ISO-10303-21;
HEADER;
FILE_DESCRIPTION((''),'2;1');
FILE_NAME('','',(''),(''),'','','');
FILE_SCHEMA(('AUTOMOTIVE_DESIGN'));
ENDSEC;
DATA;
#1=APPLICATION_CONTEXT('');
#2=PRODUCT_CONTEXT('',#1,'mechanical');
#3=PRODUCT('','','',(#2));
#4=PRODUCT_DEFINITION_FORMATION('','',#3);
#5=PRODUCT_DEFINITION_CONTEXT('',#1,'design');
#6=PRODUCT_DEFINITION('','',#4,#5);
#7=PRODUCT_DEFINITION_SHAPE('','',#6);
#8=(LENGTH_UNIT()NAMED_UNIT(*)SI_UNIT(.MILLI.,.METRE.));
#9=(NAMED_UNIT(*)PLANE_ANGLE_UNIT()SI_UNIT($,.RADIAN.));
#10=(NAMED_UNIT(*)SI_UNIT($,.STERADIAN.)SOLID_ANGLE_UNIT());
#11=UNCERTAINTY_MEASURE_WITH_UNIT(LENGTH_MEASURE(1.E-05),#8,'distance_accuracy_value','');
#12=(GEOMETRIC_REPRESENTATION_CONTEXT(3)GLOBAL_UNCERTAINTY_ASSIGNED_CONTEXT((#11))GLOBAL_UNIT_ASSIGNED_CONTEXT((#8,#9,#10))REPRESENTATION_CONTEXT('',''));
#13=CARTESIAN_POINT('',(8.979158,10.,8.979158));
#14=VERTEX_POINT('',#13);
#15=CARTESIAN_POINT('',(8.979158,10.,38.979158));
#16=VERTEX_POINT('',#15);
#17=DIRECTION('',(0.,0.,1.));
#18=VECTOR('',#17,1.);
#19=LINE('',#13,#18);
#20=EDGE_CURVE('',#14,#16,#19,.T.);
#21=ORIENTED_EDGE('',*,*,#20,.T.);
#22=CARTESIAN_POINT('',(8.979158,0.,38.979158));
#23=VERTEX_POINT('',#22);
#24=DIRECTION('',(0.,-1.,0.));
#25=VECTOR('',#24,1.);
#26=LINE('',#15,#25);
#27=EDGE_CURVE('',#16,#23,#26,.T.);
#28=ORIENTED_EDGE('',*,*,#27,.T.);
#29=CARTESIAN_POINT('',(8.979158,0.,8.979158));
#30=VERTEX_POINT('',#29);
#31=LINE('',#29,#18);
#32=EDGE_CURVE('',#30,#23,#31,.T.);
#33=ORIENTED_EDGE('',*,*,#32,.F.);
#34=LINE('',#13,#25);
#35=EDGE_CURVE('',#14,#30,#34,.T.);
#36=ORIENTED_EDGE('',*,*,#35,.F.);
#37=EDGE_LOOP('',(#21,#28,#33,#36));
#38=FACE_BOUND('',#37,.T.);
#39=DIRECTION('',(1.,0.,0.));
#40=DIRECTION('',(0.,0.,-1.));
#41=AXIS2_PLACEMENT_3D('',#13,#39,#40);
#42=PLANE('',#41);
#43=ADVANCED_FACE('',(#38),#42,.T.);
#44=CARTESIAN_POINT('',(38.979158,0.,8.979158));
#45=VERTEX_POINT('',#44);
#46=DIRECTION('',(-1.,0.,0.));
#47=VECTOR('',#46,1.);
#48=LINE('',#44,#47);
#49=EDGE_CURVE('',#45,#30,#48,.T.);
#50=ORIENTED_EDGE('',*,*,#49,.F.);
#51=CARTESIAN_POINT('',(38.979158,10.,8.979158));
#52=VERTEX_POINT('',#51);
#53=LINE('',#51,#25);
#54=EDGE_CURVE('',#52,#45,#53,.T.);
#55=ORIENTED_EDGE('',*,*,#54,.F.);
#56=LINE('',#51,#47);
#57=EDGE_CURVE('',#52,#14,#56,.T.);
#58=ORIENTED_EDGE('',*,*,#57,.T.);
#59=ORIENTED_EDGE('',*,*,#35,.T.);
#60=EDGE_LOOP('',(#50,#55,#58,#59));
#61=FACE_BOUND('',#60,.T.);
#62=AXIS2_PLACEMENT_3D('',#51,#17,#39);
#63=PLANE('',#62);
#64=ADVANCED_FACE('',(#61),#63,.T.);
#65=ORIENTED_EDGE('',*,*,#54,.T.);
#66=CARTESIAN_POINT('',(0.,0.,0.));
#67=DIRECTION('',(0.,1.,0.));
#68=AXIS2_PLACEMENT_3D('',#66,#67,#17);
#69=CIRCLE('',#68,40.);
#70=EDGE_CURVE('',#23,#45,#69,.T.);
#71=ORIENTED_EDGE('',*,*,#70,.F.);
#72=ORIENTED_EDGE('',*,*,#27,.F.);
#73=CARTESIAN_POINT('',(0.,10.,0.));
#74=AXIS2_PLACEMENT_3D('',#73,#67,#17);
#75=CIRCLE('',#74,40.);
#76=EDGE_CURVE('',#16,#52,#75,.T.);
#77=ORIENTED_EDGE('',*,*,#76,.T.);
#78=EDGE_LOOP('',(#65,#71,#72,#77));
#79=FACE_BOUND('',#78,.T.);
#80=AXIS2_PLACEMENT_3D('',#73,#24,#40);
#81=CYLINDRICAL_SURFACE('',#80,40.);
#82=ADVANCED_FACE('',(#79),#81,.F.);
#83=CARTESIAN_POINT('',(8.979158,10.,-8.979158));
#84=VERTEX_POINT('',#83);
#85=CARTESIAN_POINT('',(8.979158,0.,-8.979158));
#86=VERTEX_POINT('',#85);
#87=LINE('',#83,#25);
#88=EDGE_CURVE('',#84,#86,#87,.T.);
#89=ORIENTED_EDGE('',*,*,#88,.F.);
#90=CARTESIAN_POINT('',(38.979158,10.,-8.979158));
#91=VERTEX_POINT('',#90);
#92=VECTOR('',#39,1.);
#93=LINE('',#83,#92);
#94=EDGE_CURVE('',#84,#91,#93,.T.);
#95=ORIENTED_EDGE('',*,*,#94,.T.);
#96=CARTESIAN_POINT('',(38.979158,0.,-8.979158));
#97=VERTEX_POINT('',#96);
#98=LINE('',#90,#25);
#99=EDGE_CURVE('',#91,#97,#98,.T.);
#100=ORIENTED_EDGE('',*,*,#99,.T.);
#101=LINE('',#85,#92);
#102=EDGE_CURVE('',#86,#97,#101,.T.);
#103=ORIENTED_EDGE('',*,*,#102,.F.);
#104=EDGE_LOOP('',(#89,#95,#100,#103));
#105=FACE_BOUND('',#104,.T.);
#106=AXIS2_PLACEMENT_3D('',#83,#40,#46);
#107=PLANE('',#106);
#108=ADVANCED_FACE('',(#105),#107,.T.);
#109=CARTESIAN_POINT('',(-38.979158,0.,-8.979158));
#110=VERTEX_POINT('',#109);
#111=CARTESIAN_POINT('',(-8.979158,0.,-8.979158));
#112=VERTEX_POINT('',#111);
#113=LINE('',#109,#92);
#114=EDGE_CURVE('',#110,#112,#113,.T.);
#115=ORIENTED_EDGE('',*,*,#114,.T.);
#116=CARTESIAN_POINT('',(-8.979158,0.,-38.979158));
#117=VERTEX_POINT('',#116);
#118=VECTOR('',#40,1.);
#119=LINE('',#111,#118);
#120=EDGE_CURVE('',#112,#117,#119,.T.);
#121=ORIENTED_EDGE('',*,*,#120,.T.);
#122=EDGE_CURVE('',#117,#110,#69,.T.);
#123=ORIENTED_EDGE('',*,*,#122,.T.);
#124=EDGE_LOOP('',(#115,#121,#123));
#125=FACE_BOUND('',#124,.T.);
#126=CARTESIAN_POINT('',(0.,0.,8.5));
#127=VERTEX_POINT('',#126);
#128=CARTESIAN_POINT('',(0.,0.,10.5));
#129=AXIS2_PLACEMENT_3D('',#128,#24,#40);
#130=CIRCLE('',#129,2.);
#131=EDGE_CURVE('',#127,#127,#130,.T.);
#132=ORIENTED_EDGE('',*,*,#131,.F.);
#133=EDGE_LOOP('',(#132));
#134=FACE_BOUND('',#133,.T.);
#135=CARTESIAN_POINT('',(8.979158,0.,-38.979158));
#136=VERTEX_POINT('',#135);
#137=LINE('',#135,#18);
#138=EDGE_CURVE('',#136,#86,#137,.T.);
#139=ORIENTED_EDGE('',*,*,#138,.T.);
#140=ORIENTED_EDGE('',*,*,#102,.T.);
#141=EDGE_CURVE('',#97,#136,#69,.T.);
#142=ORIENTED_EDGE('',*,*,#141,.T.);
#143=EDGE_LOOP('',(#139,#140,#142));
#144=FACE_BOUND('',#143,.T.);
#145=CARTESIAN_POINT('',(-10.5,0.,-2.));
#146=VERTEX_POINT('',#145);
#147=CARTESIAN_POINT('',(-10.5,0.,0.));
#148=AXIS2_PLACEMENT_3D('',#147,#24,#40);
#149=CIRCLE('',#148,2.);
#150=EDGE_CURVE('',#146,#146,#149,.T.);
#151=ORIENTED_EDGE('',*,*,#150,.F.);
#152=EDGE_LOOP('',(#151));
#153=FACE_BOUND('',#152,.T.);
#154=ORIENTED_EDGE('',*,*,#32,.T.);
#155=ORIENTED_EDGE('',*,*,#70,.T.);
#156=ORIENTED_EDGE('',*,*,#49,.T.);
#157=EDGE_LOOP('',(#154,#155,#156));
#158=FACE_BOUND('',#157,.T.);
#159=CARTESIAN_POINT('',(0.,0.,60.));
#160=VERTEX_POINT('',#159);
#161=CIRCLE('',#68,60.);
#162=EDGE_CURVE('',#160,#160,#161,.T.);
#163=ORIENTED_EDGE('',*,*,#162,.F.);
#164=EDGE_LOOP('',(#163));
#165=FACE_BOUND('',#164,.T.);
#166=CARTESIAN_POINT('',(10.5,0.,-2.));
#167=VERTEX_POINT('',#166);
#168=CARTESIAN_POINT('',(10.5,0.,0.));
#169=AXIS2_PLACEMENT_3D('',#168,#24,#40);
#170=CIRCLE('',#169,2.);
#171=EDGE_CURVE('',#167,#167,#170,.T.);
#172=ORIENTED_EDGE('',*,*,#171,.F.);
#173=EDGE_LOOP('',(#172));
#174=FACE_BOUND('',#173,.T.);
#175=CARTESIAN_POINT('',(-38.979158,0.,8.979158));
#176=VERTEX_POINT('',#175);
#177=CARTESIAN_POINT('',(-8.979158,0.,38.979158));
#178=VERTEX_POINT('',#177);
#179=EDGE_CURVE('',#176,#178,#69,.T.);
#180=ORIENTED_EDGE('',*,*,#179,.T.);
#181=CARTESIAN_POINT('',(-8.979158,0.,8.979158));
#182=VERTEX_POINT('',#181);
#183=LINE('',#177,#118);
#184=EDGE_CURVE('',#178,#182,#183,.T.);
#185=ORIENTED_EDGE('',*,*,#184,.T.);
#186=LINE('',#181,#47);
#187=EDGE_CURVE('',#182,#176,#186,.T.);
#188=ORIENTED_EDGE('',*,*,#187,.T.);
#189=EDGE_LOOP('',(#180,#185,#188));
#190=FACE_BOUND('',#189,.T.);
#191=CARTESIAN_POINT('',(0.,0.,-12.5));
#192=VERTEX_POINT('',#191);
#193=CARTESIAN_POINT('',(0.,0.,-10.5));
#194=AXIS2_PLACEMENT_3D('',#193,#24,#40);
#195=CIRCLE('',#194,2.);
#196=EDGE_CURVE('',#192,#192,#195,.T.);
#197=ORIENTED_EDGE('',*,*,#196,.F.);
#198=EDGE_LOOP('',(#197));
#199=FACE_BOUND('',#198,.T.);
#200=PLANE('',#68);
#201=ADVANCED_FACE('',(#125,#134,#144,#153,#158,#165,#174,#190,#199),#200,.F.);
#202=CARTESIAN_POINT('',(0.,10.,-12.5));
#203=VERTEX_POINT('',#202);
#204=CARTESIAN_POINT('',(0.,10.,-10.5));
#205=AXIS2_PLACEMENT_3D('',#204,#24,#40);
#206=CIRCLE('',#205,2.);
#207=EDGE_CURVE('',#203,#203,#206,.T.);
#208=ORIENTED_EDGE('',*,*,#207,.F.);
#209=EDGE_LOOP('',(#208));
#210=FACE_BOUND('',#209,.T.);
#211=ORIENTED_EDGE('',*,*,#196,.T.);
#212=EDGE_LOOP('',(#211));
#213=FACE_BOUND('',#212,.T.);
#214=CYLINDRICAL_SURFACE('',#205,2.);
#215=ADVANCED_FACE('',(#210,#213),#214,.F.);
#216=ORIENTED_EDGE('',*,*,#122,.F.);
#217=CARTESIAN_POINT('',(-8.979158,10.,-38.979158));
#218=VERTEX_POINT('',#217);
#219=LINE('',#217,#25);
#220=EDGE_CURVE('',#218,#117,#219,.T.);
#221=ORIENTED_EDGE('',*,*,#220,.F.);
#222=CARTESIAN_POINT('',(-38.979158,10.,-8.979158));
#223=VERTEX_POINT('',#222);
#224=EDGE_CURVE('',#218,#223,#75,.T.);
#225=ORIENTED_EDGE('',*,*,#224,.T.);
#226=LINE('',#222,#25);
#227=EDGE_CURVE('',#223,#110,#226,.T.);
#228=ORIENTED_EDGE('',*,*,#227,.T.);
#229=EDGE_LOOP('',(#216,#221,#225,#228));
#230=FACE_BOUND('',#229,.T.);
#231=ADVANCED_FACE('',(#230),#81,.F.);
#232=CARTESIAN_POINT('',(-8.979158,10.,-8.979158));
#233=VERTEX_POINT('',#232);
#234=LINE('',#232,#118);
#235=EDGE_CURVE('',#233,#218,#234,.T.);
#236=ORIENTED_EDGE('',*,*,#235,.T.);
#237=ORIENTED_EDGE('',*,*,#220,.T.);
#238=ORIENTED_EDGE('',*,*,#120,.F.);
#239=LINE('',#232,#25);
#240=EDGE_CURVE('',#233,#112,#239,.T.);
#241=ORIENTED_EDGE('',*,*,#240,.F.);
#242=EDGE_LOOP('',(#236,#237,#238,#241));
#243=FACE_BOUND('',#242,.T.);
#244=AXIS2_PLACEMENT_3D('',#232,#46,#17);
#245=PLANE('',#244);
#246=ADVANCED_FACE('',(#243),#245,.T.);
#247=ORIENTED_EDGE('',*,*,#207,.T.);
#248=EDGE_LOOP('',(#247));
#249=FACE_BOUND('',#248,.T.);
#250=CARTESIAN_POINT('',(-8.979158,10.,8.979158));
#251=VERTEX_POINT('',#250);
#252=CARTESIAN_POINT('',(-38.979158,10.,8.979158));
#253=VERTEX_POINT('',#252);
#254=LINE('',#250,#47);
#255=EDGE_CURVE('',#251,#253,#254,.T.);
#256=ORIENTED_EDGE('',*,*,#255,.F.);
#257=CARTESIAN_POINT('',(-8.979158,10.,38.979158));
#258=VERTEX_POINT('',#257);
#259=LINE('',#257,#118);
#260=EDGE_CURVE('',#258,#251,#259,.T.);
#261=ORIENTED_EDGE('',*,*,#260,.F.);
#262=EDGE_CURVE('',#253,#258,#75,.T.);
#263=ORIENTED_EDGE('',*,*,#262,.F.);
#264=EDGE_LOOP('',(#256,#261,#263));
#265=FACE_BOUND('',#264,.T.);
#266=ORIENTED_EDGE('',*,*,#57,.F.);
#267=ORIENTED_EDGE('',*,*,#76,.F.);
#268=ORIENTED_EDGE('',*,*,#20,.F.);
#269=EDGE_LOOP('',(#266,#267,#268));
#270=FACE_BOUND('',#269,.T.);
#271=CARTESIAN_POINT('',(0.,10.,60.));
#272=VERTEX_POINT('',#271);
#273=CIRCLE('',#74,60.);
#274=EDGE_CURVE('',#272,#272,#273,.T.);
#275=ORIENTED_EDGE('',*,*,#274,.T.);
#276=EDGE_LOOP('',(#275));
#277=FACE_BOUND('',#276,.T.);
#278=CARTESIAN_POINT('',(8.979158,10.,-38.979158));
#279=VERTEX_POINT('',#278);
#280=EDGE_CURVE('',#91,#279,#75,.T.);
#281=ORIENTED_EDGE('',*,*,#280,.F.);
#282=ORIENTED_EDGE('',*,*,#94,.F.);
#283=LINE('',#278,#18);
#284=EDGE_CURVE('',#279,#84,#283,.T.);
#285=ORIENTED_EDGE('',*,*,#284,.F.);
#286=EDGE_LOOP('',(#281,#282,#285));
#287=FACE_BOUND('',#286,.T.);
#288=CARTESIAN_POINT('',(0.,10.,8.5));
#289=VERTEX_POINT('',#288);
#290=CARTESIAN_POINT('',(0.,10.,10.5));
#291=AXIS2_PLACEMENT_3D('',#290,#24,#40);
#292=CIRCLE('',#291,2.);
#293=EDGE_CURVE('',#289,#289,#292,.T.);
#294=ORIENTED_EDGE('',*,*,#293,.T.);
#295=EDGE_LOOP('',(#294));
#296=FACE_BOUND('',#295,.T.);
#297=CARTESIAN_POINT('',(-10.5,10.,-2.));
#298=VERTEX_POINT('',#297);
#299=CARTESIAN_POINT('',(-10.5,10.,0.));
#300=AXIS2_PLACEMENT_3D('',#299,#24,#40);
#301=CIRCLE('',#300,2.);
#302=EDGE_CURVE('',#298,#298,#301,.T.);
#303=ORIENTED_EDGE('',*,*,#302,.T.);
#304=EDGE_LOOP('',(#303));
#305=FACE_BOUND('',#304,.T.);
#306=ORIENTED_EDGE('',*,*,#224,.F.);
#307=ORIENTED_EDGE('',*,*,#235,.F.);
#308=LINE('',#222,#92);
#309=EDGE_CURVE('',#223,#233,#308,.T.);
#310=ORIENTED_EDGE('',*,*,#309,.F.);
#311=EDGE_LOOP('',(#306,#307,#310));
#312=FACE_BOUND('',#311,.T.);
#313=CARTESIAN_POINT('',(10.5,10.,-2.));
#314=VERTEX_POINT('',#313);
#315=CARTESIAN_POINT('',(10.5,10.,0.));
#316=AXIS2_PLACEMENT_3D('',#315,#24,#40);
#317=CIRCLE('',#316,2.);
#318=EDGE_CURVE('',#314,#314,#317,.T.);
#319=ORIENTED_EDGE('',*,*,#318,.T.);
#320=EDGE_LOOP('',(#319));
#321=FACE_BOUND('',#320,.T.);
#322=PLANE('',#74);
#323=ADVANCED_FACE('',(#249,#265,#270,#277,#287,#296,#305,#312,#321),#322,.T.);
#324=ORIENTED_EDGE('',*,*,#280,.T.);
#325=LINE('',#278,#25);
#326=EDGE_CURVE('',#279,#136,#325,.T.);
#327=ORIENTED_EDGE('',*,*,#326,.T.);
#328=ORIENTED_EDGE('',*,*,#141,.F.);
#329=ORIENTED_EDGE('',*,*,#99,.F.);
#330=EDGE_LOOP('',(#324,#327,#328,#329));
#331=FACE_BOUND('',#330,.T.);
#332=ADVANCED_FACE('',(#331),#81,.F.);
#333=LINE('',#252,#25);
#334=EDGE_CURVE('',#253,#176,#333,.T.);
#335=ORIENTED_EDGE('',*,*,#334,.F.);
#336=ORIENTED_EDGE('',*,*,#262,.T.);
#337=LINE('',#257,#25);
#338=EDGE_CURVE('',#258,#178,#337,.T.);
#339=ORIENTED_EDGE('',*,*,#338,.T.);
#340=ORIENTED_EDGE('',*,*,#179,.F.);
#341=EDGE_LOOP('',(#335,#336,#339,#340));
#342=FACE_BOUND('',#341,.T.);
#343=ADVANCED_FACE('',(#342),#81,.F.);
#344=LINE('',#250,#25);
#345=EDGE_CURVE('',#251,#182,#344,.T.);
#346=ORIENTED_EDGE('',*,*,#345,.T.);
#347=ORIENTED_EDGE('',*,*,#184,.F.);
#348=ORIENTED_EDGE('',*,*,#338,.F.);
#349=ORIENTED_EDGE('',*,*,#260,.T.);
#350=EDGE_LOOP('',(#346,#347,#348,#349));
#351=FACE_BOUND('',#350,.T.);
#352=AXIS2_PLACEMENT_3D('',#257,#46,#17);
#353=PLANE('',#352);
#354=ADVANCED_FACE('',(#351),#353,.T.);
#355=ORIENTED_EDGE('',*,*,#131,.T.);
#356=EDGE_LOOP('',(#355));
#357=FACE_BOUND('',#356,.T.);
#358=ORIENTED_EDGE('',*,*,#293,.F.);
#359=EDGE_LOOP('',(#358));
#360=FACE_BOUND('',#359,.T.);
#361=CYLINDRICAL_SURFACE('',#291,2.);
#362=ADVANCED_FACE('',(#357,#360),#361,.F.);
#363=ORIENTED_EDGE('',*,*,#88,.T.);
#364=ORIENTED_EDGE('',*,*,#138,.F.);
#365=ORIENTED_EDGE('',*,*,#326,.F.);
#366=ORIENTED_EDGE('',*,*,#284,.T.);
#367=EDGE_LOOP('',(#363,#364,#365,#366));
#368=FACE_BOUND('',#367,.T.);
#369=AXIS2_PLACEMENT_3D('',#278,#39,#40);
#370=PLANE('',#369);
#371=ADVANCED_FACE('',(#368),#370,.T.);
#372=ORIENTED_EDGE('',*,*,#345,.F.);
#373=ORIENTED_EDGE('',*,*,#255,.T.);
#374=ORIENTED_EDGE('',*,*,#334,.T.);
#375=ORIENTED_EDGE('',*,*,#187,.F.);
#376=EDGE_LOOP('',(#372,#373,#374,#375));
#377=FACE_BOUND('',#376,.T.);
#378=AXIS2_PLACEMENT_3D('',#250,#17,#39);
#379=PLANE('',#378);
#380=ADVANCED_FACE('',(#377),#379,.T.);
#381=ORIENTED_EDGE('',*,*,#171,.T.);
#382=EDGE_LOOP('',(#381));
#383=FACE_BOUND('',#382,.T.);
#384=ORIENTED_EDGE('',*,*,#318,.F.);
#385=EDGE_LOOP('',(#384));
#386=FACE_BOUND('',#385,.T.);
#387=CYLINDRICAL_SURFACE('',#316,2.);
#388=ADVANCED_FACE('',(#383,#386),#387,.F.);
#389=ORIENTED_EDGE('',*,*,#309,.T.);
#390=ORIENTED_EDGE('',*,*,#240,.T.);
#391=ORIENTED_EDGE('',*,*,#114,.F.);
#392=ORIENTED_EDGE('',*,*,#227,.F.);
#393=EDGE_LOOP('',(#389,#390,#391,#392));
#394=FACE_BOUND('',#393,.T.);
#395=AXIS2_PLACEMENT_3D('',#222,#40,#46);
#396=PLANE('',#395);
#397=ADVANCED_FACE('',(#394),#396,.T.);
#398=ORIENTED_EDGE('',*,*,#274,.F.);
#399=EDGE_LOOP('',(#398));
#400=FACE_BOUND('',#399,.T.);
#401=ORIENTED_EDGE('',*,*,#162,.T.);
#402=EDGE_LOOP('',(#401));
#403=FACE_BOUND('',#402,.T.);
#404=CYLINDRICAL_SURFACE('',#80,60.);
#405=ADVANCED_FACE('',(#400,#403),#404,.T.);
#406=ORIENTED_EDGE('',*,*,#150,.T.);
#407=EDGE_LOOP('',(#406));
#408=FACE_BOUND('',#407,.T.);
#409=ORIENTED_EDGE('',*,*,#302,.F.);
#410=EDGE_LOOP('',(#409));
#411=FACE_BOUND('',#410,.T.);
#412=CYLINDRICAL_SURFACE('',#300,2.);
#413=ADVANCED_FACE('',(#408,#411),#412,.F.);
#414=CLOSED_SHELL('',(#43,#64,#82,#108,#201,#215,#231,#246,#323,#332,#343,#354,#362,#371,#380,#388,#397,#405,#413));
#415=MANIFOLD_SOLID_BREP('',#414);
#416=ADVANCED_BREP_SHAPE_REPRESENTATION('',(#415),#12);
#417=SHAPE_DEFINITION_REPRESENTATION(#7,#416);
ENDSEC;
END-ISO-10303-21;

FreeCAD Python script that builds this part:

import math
import FreeCAD as App
import Part
import Sketcher
from FreeCAD import Vector

doc = App.newDocument("Part")
body = doc.addObject("PartDesign::Body", "Body")

# Sketch on XZ plane
sketch1 = doc.addObject("Sketcher::SketchObject", "Sketch")
body.addObject(sketch1)
sketch1.AttachmentSupport = (doc.XZ_Plane, [""])
sketch1.MapMode = "FlatFace"
sketch1.addGeometry(Part.Circle(Vector(0, 0, 0), Vector(0, 0, 1), 60), False)
sketch1.addGeometry(Part.LineSegment(Vector(-8.979158, -38.979158, 0), Vector(-8.979158, -8.979158, 0)), False)
sketch1.addGeometry(Part.LineSegment(Vector(-8.979158, -8.979158, 0), Vector(-38.979158, -8.979158, 0)), False)
sketch1.addGeometry(Part.ArcOfCircle(Part.Circle(Vector(0, 0, 0), Vector(0, 0, 1), 40), math.radians(-167.02776), math.radians(-102.97224)), False)
sketch1.addGeometry(Part.LineSegment(Vector(-8.979158, 8.979158, 0), Vector(-8.979158, 38.979158, 0)), False)
sketch1.addGeometry(Part.ArcOfCircle(Part.Circle(Vector(0, 0, 0), Vector(0, 0, 1), 40), math.radians(102.97224), math.radians(167.02776)), False)
sketch1.addGeometry(Part.LineSegment(Vector(-38.979158, 8.979158, 0), Vector(-8.979158, 8.979158, 0)), False)
sketch1.addGeometry(Part.LineSegment(Vector(38.979158, -8.979158, 0), Vector(8.979158, -8.979158, 0)), False)
sketch1.addGeometry(Part.LineSegment(Vector(8.979158, -8.979158, 0), Vector(8.979158, -38.979158, 0)), False)
sketch1.addGeometry(Part.ArcOfCircle(Part.Circle(Vector(0, 0, 0), Vector(0, 0, 1), 40), math.radians(-77.02776), math.radians(-12.97224)), False)
sketch1.addGeometry(Part.LineSegment(Vector(8.979158, 38.979158, 0), Vector(8.979158, 8.979158, 0)), False)
sketch1.addGeometry(Part.LineSegment(Vector(8.979158, 8.979158, 0), Vector(38.979158, 8.979158, 0)), False)
sketch1.addGeometry(Part.ArcOfCircle(Part.Circle(Vector(0, 0, 0), Vector(0, 0, 1), 40), math.radians(12.97224), math.radians(77.02776)), False)
sketch1.addConstraint(Sketcher.Constraint("Coincident", 1, 2, 2, 1))
sketch1.addConstraint(Sketcher.Constraint("Coincident", 2, 2, 3, 1))
sketch1.addConstraint(Sketcher.Constraint("Coincident", 3, 2, 1, 1))
sketch1.addConstraint(Sketcher.Constraint("Coincident", 4, 2, 5, 1))
sketch1.addConstraint(Sketcher.Constraint("Coincident", 5, 2, 6, 1))
sketch1.addConstraint(Sketcher.Constraint("Coincident", 6, 2, 4, 1))
sketch1.addConstraint(Sketcher.Constraint("Coincident", 7, 2, 8, 1))
sketch1.addConstraint(Sketcher.Constraint("Coincident", 8, 2, 9, 1))
sketch1.addConstraint(Sketcher.Constraint("Coincident", 9, 2, 7, 1))
sketch1.addConstraint(Sketcher.Constraint("Coincident", 10, 2, 11, 1))
sketch1.addConstraint(Sketcher.Constraint("Coincident", 11, 2, 12, 1))
sketch1.addConstraint(Sketcher.Constraint("Coincident", 12, 2, 10, 1))
sketch1.addConstraint(Sketcher.Constraint("Vertical", 1))
sketch1.addConstraint(Sketcher.Constraint("Horizontal", 2))
sketch1.addConstraint(Sketcher.Constraint("Vertical", 4))
sketch1.addConstraint(Sketcher.Constraint("Horizontal", 6))
sketch1.addConstraint(Sketcher.Constraint("Horizontal", 7))
sketch1.addConstraint(Sketcher.Constraint("Vertical", 8))
sketch1.addConstraint(Sketcher.Constraint("Vertical", 10))
sketch1.addConstraint(Sketcher.Constraint("Horizontal", 11))
sketch1.addConstraint(Sketcher.Constraint("Coincident", 0, 3, -1, 1))
sketch1.addConstraint(Sketcher.Constraint("Coincident", 3, 3, -1, 1))
sketch1.addConstraint(Sketcher.Constraint("Coincident", 5, 3, -1, 1))
sketch1.addConstraint(Sketcher.Constraint("Coincident", 9, 3, -1, 1))
sketch1.addConstraint(Sketcher.Constraint("Coincident", 12, 3, -1, 1))
sketch1.addConstraint(Sketcher.Constraint("Equal", 3, 5))
sketch1.addConstraint(Sketcher.Constraint("Equal", 5, 9))
sketch1.addConstraint(Sketcher.Constraint("Equal", 9, 12))
sketch1.addConstraint(Sketcher.Constraint("Symmetric", 6, 2, 7, 2, -1, 1))
sketch1.addConstraint(Sketcher.Constraint("Symmetric", 1, 2, 10, 2, -1, 1))
sketch1.addConstraint(Sketcher.Constraint("Symmetric", 1, 2, 7, 2, -2))
sketch1.addConstraint(Sketcher.Constraint("Equal", 11, 1))
sketch1.addConstraint(Sketcher.Constraint("Diameter", 0, 120.0))
sketch1.addConstraint(Sketcher.Constraint("Radius", 3, 40.0))
sketch1.addConstraint(Sketcher.Constraint("DistanceX", 2, 2, 2, 1, 30.0))
pad1 = doc.addObject("PartDesign::Pad", "Pad")
body.addObject(pad1)
pad1.Profile = sketch1
pad1.Length = 10
pad1.Reversed = True

# Sketch on XZ plane
sketch2 = doc.addObject("Sketcher::SketchObject", "Sketch001")
body.addObject(sketch2)
sketch2.AttachmentSupport = (doc.XZ_Plane, [""])
sketch2.MapMode = "FlatFace"
sketch2.addGeometry(Part.Circle(Vector(-10.5, 0, 0), Vector(0, 0, 1), 2), False)
sketch2.addGeometry(Part.Circle(Vector(0, 10.5, 0), Vector(0, 0, 1), 2), False)
sketch2.addGeometry(Part.Circle(Vector(10.5, 0, 0), Vector(0, 0, 1), 2), False)
sketch2.addGeometry(Part.Circle(Vector(0, -10.5, 0), Vector(0, 0, 1), 2), False)
sketch2.addConstraint(Sketcher.Constraint("Equal", 0, 1))
sketch2.addConstraint(Sketcher.Constraint("Equal", 1, 2))
sketch2.addConstraint(Sketcher.Constraint("Equal", 2, 3))
sketch2.addConstraint(Sketcher.Constraint("Symmetric", 0, 3, 2, 3, -1, 1))
sketch2.addConstraint(Sketcher.Constraint("Symmetric", 1, 3, 3, 3, -1, 1))
sketch2.addConstraint(Sketcher.Constraint("PointOnObject", 0, 3, -1))
sketch2.addConstraint(Sketcher.Constraint("PointOnObject", 1, 3, -2))
sketch2.addConstraint(Sketcher.Constraint("Diameter", 0, 4.0))
sketch2.addConstraint(Sketcher.Constraint("DistanceX", 0, 3, 2, 3, 21.0))
sketch2.addConstraint(Sketcher.Constraint("DistanceY", 3, 3, 1, 3, 21.0))
pocket1 = doc.addObject("PartDesign::Pocket", "Pocket")
body.addObject(pocket1)
pocket1.Profile = sketch2
pocket1.Type = "ThroughAll"

doc.recompute()
